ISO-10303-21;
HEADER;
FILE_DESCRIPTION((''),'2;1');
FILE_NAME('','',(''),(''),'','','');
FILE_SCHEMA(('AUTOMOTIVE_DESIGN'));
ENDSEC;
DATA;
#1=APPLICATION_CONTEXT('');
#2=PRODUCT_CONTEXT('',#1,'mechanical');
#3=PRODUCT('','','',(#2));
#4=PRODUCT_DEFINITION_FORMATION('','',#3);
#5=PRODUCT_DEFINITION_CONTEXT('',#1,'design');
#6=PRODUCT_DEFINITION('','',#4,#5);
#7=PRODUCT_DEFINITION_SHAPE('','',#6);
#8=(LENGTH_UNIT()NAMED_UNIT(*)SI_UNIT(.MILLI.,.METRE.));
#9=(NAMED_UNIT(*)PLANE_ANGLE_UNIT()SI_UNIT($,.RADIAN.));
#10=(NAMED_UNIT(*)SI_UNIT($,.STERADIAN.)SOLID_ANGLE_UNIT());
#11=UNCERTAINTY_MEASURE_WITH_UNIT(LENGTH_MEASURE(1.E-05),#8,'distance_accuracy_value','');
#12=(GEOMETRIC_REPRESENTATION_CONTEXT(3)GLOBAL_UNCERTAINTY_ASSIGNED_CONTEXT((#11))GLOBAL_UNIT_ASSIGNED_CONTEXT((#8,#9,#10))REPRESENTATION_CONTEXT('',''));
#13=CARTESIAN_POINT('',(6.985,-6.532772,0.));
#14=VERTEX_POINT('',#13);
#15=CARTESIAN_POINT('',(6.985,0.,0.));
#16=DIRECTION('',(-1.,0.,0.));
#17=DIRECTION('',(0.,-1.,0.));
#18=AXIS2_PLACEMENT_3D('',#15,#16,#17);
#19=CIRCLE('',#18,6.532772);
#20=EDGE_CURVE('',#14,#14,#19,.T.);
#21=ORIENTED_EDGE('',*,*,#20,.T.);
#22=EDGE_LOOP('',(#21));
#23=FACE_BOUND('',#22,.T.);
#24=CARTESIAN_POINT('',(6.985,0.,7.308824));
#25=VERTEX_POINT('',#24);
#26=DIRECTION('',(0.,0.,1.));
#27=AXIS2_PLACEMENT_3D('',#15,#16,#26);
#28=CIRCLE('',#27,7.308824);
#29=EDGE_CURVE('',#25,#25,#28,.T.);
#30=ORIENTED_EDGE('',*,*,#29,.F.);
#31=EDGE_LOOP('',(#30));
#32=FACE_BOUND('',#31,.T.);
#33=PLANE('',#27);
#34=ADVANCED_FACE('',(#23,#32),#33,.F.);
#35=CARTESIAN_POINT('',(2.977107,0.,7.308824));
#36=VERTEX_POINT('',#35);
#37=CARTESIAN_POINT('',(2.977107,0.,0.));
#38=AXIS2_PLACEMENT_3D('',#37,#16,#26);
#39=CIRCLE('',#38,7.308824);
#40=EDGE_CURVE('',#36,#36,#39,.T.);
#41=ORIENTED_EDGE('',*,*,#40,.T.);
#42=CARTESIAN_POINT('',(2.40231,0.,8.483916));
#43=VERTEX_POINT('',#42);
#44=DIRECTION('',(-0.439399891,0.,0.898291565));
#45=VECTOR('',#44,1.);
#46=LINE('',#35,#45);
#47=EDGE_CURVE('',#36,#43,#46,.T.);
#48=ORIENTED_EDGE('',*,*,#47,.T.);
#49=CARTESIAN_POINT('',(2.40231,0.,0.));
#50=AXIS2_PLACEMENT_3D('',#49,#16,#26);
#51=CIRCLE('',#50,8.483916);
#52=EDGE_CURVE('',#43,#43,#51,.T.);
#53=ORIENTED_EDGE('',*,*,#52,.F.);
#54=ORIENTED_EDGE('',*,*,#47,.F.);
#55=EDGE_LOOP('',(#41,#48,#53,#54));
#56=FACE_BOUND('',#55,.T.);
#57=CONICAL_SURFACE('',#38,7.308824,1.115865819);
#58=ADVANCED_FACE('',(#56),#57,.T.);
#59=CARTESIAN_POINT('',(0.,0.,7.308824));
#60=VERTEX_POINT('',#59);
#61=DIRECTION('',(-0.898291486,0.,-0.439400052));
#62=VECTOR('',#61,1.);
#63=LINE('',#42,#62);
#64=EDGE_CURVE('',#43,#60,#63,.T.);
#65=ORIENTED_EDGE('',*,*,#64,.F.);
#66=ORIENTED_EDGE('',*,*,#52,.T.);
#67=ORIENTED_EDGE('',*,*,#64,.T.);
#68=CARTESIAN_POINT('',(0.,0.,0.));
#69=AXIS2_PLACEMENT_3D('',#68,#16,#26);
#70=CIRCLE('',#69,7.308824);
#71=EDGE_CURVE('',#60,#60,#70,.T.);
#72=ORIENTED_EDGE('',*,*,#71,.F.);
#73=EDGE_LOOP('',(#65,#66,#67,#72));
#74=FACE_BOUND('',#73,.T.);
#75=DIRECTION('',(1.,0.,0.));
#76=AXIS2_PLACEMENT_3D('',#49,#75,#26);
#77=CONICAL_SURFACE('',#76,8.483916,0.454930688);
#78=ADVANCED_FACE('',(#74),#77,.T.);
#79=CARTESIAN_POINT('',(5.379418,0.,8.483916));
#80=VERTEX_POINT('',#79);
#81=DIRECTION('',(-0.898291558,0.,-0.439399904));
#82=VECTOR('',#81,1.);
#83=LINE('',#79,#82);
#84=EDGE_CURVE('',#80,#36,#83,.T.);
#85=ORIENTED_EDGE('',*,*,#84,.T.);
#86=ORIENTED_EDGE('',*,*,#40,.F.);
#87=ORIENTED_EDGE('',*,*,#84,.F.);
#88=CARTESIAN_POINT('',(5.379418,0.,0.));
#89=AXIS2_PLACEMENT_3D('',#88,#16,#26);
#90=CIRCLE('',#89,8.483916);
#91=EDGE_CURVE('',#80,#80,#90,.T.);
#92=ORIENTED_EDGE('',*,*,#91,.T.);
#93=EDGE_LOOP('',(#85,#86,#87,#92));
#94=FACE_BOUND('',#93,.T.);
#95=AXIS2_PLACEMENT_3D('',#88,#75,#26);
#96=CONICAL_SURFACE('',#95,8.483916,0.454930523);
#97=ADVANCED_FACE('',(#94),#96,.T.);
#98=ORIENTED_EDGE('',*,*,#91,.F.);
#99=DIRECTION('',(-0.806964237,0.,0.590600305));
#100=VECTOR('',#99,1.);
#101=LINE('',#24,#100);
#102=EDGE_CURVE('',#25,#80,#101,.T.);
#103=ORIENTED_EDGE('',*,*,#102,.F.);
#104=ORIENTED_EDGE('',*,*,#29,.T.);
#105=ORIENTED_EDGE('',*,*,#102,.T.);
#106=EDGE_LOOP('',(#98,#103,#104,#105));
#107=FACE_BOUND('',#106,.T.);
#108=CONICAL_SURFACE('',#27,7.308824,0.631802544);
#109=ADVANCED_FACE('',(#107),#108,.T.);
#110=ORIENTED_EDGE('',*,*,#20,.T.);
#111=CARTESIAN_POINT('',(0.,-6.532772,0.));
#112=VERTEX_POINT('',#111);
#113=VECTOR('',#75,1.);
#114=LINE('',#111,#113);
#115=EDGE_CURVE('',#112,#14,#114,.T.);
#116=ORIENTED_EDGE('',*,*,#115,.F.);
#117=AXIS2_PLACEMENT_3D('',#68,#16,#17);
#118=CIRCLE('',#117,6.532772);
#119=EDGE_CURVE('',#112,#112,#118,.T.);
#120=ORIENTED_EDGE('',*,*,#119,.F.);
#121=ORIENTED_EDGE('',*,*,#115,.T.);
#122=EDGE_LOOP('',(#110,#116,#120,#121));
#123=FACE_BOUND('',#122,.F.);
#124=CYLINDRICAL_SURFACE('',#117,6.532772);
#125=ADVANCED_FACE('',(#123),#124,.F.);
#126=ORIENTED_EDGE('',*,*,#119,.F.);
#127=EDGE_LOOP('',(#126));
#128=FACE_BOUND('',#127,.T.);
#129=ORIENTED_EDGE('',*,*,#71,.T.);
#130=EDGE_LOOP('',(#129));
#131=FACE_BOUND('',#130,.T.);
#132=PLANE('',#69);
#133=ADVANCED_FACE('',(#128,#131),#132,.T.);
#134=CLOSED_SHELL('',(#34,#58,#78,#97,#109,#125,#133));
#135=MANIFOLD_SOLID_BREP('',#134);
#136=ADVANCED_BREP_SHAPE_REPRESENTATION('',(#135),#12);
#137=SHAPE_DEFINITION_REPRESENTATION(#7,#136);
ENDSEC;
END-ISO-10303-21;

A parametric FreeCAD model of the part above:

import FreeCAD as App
import Part
import Sketcher
Q = App.Units.Quantity


def add_polygon(sketch, points):
    """Adds a closed chain of lines whose ends are joined by coincident constraints."""
    first, n = sketch.GeometryCount, len(points)
    for a, b in zip(points, points[1:] + points[:1]):
        sketch.addGeometry(Part.LineSegment(App.Vector(*a, 0), App.Vector(*b, 0)), False)
    for i in range(n):
        sketch.addConstraint(Sketcher.Constraint("Coincident", first + i, 2, first + (i + 1) % n, 1))

doc = App.newDocument("Part")
body = doc.addObject("PartDesign::Body", "Body")

# Sketch on XZ plane
sketch1 = doc.addObject("Sketcher::SketchObject", "Sketch")
body.addObject(sketch1)
sketch1.AttachmentSupport = (doc.XZ_Plane, [""])
sketch1.MapMode = "FlatFace"
add_polygon(sketch1, [(0, 7.3), (0, 0), (7, 0), (7, 7.3), (5.4, 8.5), (3, 7.3), (2.4, 8.5)])  # lines 0-6
sketch1.addConstraint(Sketcher.Constraint("Vertical", 0))
sketch1.addConstraint(Sketcher.Constraint("Horizontal", 1))
sketch1.addConstraint(Sketcher.Constraint("Vertical", 2))
sketch1.addConstraint(Sketcher.Constraint("Coincident", 0, 2, -1, 1))
sketch1.addConstraint(Sketcher.Constraint("Perpendicular", 4, 5))
sketch1.addConstraint(Sketcher.Constraint("Perpendicular", 5, 6))
sketch1.addConstraint(Sketcher.Constraint("Horizontal", 2, 2, 4, 2))
sketch1.addConstraint(Sketcher.Constraint("Horizontal", 3, 2, 5, 2))
sketch1.addConstraint(Sketcher.Constraint("Horizontal", 4, 2, 6, 2))
sketch1.addConstraint(Sketcher.Constraint("DistanceX", 1, 1, 1, 2, Q("0.275 in")))
sketch1.addConstraint(Sketcher.Constraint("Distance", 4, Q("2.674311 mm")))
sketch1.addConstraint(Sketcher.Constraint("Distance", 5, Q("1.308141 mm")))
sketch1.addConstraint(Sketcher.Constraint("DistanceY", 0, 2, 0, 1, Q("7.308824 mm")))
revolution = doc.addObject("PartDesign::Revolution", "Revolution")
body.addObject(revolution)
revolution.Profile = sketch1
revolution.ReferenceAxis = (sketch1, ["H_Axis"])
revolution.Angle = 360

# Sketch on YZ plane
sketch2 = doc.addObject("Sketcher::SketchObject", "Sketch001")
body.addObject(sketch2)
sketch2.AttachmentSupport = (doc.YZ_Plane, [""])
sketch2.MapMode = "FlatFace"
sketch2.addGeometry(Part.Circle(App.Vector(0, 0, 0), App.Vector(0, 0, 1), 7), False)
sketch2.addConstraint(Sketcher.Constraint("Coincident", 0, 3, -1, 1))
sketch2.addConstraint(Sketcher.Constraint("Diameter", 0, Q("13.065544 mm")))
pocket1 = doc.addObject("PartDesign::Pocket", "Pocket")
body.addObject(pocket1)
pocket1.Profile = sketch2
pocket1.Length = Q("1 in")
pocket1.Reversed = True

doc.recompute()
